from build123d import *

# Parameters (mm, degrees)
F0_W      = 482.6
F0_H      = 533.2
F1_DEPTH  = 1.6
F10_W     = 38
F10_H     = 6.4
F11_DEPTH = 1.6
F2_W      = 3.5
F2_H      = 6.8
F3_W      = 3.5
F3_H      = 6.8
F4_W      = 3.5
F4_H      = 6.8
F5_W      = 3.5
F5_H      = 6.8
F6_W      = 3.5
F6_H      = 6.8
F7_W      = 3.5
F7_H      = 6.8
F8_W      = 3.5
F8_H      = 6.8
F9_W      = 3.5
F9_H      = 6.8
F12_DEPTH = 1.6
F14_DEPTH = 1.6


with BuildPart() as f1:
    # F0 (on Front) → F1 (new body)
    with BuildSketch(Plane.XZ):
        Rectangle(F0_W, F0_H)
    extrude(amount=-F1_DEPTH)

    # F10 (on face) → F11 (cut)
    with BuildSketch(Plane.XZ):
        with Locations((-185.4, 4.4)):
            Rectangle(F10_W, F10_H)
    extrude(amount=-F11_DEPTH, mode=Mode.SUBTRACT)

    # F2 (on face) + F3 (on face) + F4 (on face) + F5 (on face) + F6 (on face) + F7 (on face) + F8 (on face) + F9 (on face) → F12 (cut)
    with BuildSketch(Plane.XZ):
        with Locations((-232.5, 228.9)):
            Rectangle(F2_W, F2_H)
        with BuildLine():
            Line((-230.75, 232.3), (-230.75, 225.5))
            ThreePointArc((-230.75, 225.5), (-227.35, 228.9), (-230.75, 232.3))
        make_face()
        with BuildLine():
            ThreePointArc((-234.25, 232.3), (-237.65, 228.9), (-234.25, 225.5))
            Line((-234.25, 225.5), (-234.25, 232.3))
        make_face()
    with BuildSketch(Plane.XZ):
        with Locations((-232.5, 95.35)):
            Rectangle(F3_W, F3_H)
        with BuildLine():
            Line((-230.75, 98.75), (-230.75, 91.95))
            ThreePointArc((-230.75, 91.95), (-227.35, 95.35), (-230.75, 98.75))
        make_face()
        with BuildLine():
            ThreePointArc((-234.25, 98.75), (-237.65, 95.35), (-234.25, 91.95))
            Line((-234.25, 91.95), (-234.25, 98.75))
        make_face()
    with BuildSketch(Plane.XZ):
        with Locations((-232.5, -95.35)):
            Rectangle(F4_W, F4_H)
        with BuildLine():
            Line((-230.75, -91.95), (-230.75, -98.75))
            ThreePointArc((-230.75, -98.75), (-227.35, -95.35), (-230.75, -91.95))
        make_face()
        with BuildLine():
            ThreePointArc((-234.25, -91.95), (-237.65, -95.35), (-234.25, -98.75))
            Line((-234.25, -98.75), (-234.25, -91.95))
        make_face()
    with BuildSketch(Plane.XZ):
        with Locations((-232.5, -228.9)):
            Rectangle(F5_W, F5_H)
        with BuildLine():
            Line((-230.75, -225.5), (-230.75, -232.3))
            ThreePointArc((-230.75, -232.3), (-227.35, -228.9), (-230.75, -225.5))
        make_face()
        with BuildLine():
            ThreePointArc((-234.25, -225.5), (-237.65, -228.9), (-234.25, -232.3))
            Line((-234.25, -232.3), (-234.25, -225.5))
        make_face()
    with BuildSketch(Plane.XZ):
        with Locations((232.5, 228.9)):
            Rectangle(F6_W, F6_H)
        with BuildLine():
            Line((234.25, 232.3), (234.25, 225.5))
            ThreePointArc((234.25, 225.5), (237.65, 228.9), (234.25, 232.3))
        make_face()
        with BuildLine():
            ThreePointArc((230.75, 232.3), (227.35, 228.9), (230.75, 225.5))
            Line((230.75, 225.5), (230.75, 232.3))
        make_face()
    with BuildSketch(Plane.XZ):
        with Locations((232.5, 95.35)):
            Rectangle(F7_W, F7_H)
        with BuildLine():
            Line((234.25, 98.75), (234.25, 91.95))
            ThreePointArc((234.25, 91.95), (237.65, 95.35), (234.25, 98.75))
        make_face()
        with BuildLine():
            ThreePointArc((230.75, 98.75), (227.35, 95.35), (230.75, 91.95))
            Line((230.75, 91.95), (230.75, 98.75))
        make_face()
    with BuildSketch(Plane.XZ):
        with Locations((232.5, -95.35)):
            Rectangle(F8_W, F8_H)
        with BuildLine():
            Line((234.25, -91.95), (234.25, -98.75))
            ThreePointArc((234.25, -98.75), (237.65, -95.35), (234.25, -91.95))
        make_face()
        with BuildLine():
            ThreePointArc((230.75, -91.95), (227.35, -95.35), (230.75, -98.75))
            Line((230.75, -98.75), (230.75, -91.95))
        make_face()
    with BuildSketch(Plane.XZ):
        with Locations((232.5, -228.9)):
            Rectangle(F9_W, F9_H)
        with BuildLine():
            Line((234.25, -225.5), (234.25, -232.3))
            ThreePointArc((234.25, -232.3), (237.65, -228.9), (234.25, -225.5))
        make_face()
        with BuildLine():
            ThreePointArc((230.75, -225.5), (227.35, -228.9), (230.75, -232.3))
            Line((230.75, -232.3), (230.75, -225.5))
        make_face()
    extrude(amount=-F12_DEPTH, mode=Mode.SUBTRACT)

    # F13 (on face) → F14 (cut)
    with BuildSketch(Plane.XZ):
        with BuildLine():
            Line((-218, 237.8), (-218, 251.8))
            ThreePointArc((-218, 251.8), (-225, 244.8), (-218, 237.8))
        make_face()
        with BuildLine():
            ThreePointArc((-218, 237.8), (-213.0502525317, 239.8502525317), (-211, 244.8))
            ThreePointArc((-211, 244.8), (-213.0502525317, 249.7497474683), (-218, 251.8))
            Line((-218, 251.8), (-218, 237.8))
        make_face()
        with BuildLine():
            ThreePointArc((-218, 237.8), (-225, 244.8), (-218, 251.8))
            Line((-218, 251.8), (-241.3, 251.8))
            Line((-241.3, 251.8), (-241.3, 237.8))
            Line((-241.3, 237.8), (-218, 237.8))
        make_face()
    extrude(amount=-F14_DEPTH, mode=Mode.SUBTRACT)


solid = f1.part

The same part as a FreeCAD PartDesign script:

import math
import FreeCAD as App
import Part
import Sketcher

V = App.Vector
Q = App.Units.Quantity

doc = App.newDocument("Part")
body = doc.addObject("PartDesign::Body", "Body")

# Sketch on XZ plane
sketch1 = body.newObject("Sketcher::SketchObject", "Sketch")
sketch1.AttachmentSupport = (doc.getObject("XZ_Plane"), [""])
sketch1.MapMode = "FlatFace"
sketch1.addGeometry([
    Part.LineSegment(V(-241, 267, 0), V(-241, -267, 0)),
    Part.LineSegment(V(-241, -267, 0), V(241, -267, 0)),
    Part.LineSegment(V(241, -267, 0), V(241, 267, 0)),
    Part.LineSegment(V(241, 267, 0), V(-241, 267, 0)),
], False)
sketch1.addConstraint([
    Sketcher.Constraint("Coincident", 0, 2, 1, 1),
    Sketcher.Constraint("Coincident", 1, 2, 2, 1),
    Sketcher.Constraint("Coincident", 2, 2, 3, 1),
    Sketcher.Constraint("Coincident", 3, 2, 0, 1),
    Sketcher.Constraint("Vertical", 0),
    Sketcher.Constraint("Horizontal", 1),
    Sketcher.Constraint("Vertical", 2),
    Sketcher.Constraint("Horizontal", 3),
    Sketcher.Constraint("Symmetric", 0, 2, 2, 2, -1, 1),
    Sketcher.Constraint("DistanceX", 1, 1, 1, 2, Q("482.6 mm")),
    Sketcher.Constraint("DistanceY", 0, 2, 0, 1, Q("533.2 mm")),
])
pad1 = body.newObject("PartDesign::Pad", "Pad")
pad1.Profile = sketch1
pad1.Length = 1.6
pad1.Reversed = True

# Sketch on XZ plane
sketch2 = body.newObject("Sketcher::SketchObject", "Sketch001")
sketch2.AttachmentSupport = (doc.getObject("XZ_Plane"), [""])
sketch2.MapMode = "FlatFace"
sketch2.addGeometry([
    Part.LineSegment(V(-204, 8, 0), V(-204, 1, 0)),
    Part.LineSegment(V(-204, 1, 0), V(-166, 1, 0)),
    Part.LineSegment(V(-166, 1, 0), V(-166, 8, 0)),
    Part.LineSegment(V(-166, 8, 0), V(-204, 8, 0)),
], False)
sketch2.addConstraint([
    Sketcher.Constraint("Coincident", 0, 2, 1, 1),
    Sketcher.Constraint("Coincident", 1, 2, 2, 1),
    Sketcher.Constraint("Coincident", 2, 2, 3, 1),
    Sketcher.Constraint("Coincident", 3, 2, 0, 1),
    Sketcher.Constraint("Vertical", 0),
    Sketcher.Constraint("Horizontal", 1),
    Sketcher.Constraint("Vertical", 2),
    Sketcher.Constraint("Horizontal", 3),
    Sketcher.Constraint("DistanceX", 1, 1, 1, 2, Q("38 mm")),
    Sketcher.Constraint("DistanceY", 0, 2, 0, 1, Q("6.4 mm")),
    Sketcher.Constraint("DistanceX", 0, 2, -1, 1, Q("204.4 mm")),
    Sketcher.Constraint("DistanceY", -1, 1, 0, 2, Q("1.2 mm")),
])
pocket1 = body.newObject("PartDesign::Pocket", "Pocket")
pocket1.Profile = sketch2
pocket1.Length = 1.6

# Sketch on XZ plane
sketch3 = body.newObject("Sketcher::SketchObject", "Sketch002")
sketch3.AttachmentSupport = (doc.getObject("XZ_Plane"), [""])
sketch3.MapMode = "FlatFace"
sketch3.addGeometry([
    Part.LineSegment(V(-234.2, 225.5, 0), V(-230.8, 225.5, 0)),  # 0
    Part.ArcOfCircle(Part.Circle(V(-230.8, 228.9, 0), V(0, 0, 1), 3.4), math.radians(-90), math.radians(90)),  # 1
    Part.LineSegment(V(-230.8, 232.3, 0), V(-234.2, 232.3, 0)),  # 2
    Part.ArcOfCircle(Part.Circle(V(-234.2, 228.9, 0), V(0, 0, 1), 3.4), math.radians(90), math.radians(270)),  # 3
    Part.LineSegment(V(-234.2, 92, 0), V(-230.8, 92, 0)),  # 4
    Part.ArcOfCircle(Part.Circle(V(-230.8, 95.3, 0), V(0, 0, 1), 3.4), math.radians(-90), math.radians(90)),  # 5
    Part.LineSegment(V(-230.8, 98.8, 0), V(-234.2, 98.8, 0)),  # 6
    Part.ArcOfCircle(Part.Circle(V(-234.2, 95.3, 0), V(0, 0, 1), 3.4), math.radians(90), math.radians(270)),  # 7
    Part.LineSegment(V(-234.2, -98.8, 0), V(-230.8, -98.8, 0)),  # 8
    Part.ArcOfCircle(Part.Circle(V(-230.8, -95.3, 0), V(0, 0, 1), 3.4), math.radians(-90), math.radians(90)),  # 9
    Part.LineSegment(V(-230.8, -92, 0), V(-234.2, -92, 0)),  # 10
    Part.ArcOfCircle(Part.Circle(V(-234.2, -95.3, 0), V(0, 0, 1), 3.4), math.radians(90), math.radians(270)),  # 11
    Part.LineSegment(V(-234.2, -232.3, 0), V(-230.8, -232.3, 0)),  # 12
    Part.ArcOfCircle(Part.Circle(V(-230.8, -228.9, 0), V(0, 0, 1), 3.4), math.radians(-90), math.radians(90)),  # 13
    Part.LineSegment(V(-230.8, -225.5, 0), V(-234.2, -225.5, 0)),  # 14
    Part.ArcOfCircle(Part.Circle(V(-234.2, -228.9, 0), V(0, 0, 1), 3.4), math.radians(90), math.radians(270)),  # 15
    Part.LineSegment(V(230.8, 225.5, 0), V(234.2, 225.5, 0)),  # 16
    Part.ArcOfCircle(Part.Circle(V(234.2, 228.9, 0), V(0, 0, 1), 3.4), math.radians(-90), math.radians(90)),  # 17
    Part.LineSegment(V(234.2, 232.3, 0), V(230.8, 232.3, 0)),  # 18
    Part.ArcOfCircle(Part.Circle(V(230.8, 228.9, 0), V(0, 0, 1), 3.4), math.radians(90), math.radians(270)),  # 19
    Part.LineSegment(V(230.8, 92, 0), V(234.2, 92, 0)),  # 20
    Part.ArcOfCircle(Part.Circle(V(234.2, 95.3, 0), V(0, 0, 1), 3.4), math.radians(-90), math.radians(90)),  # 21
    Part.LineSegment(V(234.2, 98.8, 0), V(230.8, 98.8, 0)),  # 22
    Part.ArcOfCircle(Part.Circle(V(230.8, 95.3, 0), V(0, 0, 1), 3.4), math.radians(90), math.radians(270)),  # 23
    Part.LineSegment(V(230.8, -98.8, 0), V(234.2, -98.8, 0)),  # 24
    Part.ArcOfCircle(Part.Circle(V(234.2, -95.3, 0), V(0, 0, 1), 3.4), math.radians(-90), math.radians(90)),  # 25
    Part.LineSegment(V(234.2, -92, 0), V(230.8, -92, 0)),  # 26
    Part.ArcOfCircle(Part.Circle(V(230.8, -95.3, 0), V(0, 0, 1), 3.4), math.radians(90), math.radians(270)),  # 27
    Part.LineSegment(V(230.8, -232.3, 0), V(234.2, -232.3, 0)),  # 28
    Part.ArcOfCircle(Part.Circle(V(234.2, -228.9, 0), V(0, 0, 1), 3.4), math.radians(-90), math.radians(90)),  # 29
    Part.LineSegment(V(234.2, -225.5, 0), V(230.8, -225.5, 0)),  # 30
    Part.ArcOfCircle(Part.Circle(V(230.8, -228.9, 0), V(0, 0, 1), 3.4), math.radians(90), math.radians(270)),  # 31
], False)
sketch3.addConstraint([
    Sketcher.Constraint("Tangent", 0, 2, 1, 1),
    Sketcher.Constraint("Tangent", 1, 2, 2, 1),
    Sketcher.Constraint("Tangent", 2, 2, 3, 1),
    Sketcher.Constraint("Tangent", 3, 2, 0, 1),
    Sketcher.Constraint("Tangent", 4, 2, 5, 1),
    Sketcher.Constraint("Tangent", 5, 2, 6, 1),
    Sketcher.Constraint("Tangent", 6, 2, 7, 1),
    Sketcher.Constraint("Tangent", 7, 2, 4, 1),
    Sketcher.Constraint("Tangent", 8, 2, 9, 1),
    Sketcher.Constraint("Tangent", 9, 2, 10, 1),
    Sketcher.Constraint("Tangent", 10, 2, 11, 1),
    Sketcher.Constraint("Tangent", 11, 2, 8, 1),
    Sketcher.Constraint("Tangent", 12, 2, 13, 1),
    Sketcher.Constraint("Tangent", 13, 2, 14, 1),
    Sketcher.Constraint("Tangent", 14, 2, 15, 1),
    Sketcher.Constraint("Tangent", 15, 2, 12, 1),
    Sketcher.Constraint("Tangent", 16, 2, 17, 1),
    Sketcher.Constraint("Tangent", 17, 2, 18, 1),
    Sketcher.Constraint("Tangent", 18, 2, 19, 1),
    Sketcher.Constraint("Tangent", 19, 2, 16, 1),
    Sketcher.Constraint("Tangent", 20, 2, 21, 1),
    Sketcher.Constraint("Tangent", 21, 2, 22, 1),
    Sketcher.Constraint("Tangent", 22, 2, 23, 1),
    Sketcher.Constraint("Tangent", 23, 2, 20, 1),
    Sketcher.Constraint("Tangent", 24, 2, 25, 1),
    Sketcher.Constraint("Tangent", 25, 2, 26, 1),
    Sketcher.Constraint("Tangent", 26, 2, 27, 1),
    Sketcher.Constraint("Tangent", 27, 2, 24, 1),
    Sketcher.Constraint("Tangent", 28, 2, 29, 1),
    Sketcher.Constraint("Tangent", 29, 2, 30, 1),
    Sketcher.Constraint("Tangent", 30, 2, 31, 1),
    Sketcher.Constraint("Tangent", 31, 2, 28, 1),
    Sketcher.Constraint("Horizontal", 0),
    Sketcher.Constraint("Horizontal", 2),
    Sketcher.Constraint("Horizontal", 4),
    Sketcher.Constraint("Horizontal", 6),
    Sketcher.Constraint("Horizontal", 8),
    Sketcher.Constraint("Horizontal", 10),
    Sketcher.Constraint("Horizontal", 12),
    Sketcher.Constraint("Horizontal", 14),
    Sketcher.Constraint("Horizontal", 16),
    Sketcher.Constraint("Horizontal", 18),
    Sketcher.Constraint("Horizontal", 20),
    Sketcher.Constraint("Horizontal", 22),
    Sketcher.Constraint("Horizontal", 24),
    Sketcher.Constraint("Horizontal", 26),
    Sketcher.Constraint("Horizontal", 28),
    Sketcher.Constraint("Horizontal", 30),
    Sketcher.Constraint("Equal", 3, 5),
    Sketcher.Constraint("Equal", 7, 9),
    Sketcher.Constraint("Equal", 11, 13),
    Sketcher.Constraint("Equal", 15, 17),
    Sketcher.Constraint("Equal", 19, 21),
    Sketcher.Constraint("Equal", 23, 25),
    Sketcher.Constraint("Equal", 27, 29),
    Sketcher.Constraint("Symmetric", 15, 3, 17, 3, -1, 1),
    Sketcher.Constraint("Symmetric", 11, 3, 21, 3, -1, 1),
    Sketcher.Constraint("Symmetric", 7, 3, 25, 3, -1, 1),
    Sketcher.Constraint("Symmetric", 3, 3, 29, 3, -1, 1),
    Sketcher.Constraint("Symmetric", 3, 3, 17, 3, -2),
    Sketcher.Constraint("Symmetric", 7, 3, 21, 3, -2),
    Sketcher.Constraint("Vertical", 1, 3, 5, 3),
    Sketcher.Constraint("Vertical", 3, 3, 7, 3),
    Sketcher.Constraint("Vertical", 5, 3, 9, 3),
    Sketcher.Constraint("Vertical", 9, 3, 13, 3),
    Sketcher.Constraint("Vertical", 19, 3, 23, 3),
    Sketcher.Constraint("Vertical", 23, 3, 27, 3),
    Sketcher.Constraint("Vertical", 27, 3, 31, 3),
    Sketcher.Constraint("Equal", 14, 16),
    Sketcher.Constraint("Radius", 1, Q("3.4 mm")),
    Sketcher.Constraint("DistanceX", 0, 1, 0, 2, Q("3.5 mm")),
    Sketcher.Constraint("DistanceX", 1, 3, 17, 3, Q("465 mm")),
    Sketcher.Constraint("DistanceY", -1, 1, 1, 3, Q("228.9 mm")),
    Sketcher.Constraint("DistanceY", 9, 3, 5, 3, Q("190.7 mm")),
])
pocket2 = body.newObject("PartDesign::Pocket", "Pocket001")
pocket2.Profile = sketch3
pocket2.Length = 1.6

# Sketch on XZ plane
sketch4 = body.newObject("Sketcher::SketchObject", "Sketch003")
sketch4.AttachmentSupport = (doc.getObject("XZ_Plane"), [""])
sketch4.MapMode = "FlatFace"
sketch4.addGeometry([
    Part.ArcOfCircle(Part.Circle(V(-218, 245, 0), V(0, 0, 1), 7), math.radians(-90), math.radians(0)),  # 0
    Part.ArcOfCircle(Part.Circle(V(-218, 245, 0), V(0, 0, 1), 7), math.radians(0), math.radians(90)),  # 1
    Part.LineSegment(V(-218, 252, 0), V(-241, 252, 0)),  # 2
    Part.LineSegment(V(-241, 252, 0), V(-241, 238, 0)),  # 3
    Part.LineSegment(V(-241, 238, 0), V(-218, 238, 0)),  # 4
], False)
sketch4.addConstraint([
    Sketcher.Constraint("Tangent", 0, 2, 1, 1),
    Sketcher.Constraint("Tangent", 1, 2, 2, 1),
    Sketcher.Constraint("Coincident", 2, 2, 3, 1),
    Sketcher.Constraint("Coincident", 3, 2, 4, 1),
    Sketcher.Constraint("Tangent", 4, 2, 0, 1),
    Sketcher.Constraint("Horizontal", 2),
    Sketcher.Constraint("Vertical", 3),
    Sketcher.Constraint("Horizontal", 4),
    Sketcher.Constraint("Equal", 0, 1),
    Sketcher.Constraint("Horizontal", 1, 3, 0, 2),
    Sketcher.Constraint("Radius", 0, Q("7 mm")),
    Sketcher.Constraint("DistanceX", 2, 2, 2, 1, Q("23.3 mm")),
    Sketcher.Constraint("DistanceX", 0, 3, -1, 1, Q("218 mm")),
    Sketcher.Constraint("DistanceY", -1, 1, 0, 3, Q("244.8 mm")),
])
pocket3 = body.newObject("PartDesign::Pocket", "Pocket002")
pocket3.Profile = sketch4
pocket3.Length = 1.6

doc.recompute()
